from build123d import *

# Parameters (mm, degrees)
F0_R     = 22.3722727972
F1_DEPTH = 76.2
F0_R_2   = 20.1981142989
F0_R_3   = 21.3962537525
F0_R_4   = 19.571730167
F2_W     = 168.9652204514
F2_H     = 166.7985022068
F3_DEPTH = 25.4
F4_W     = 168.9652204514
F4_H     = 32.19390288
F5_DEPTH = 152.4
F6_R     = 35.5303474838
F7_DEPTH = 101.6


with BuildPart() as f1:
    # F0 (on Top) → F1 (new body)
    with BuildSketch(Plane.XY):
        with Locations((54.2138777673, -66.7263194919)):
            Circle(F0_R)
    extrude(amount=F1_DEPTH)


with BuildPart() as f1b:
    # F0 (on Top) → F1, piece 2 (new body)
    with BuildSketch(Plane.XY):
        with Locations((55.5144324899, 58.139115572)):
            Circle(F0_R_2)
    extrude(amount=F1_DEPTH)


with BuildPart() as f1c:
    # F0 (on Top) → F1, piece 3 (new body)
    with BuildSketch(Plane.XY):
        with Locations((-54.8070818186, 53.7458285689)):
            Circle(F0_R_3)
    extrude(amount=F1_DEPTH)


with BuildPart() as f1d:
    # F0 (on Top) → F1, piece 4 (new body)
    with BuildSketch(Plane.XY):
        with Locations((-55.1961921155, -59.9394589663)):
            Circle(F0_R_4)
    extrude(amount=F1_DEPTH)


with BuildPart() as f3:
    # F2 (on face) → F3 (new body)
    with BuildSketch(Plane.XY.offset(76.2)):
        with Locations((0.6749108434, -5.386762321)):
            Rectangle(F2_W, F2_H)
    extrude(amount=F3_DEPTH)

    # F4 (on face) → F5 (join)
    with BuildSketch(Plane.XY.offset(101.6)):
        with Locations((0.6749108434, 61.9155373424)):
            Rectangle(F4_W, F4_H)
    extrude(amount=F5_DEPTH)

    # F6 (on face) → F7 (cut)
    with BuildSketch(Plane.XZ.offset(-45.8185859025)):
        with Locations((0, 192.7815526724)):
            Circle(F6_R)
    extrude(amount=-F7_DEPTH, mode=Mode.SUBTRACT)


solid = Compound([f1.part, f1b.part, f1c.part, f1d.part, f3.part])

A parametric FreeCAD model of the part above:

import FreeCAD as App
import Part
import Sketcher
from FreeCAD import Vector
Q = App.Units.Quantity


def add_polygon(sketch, points):
    """Adds a closed chain of lines whose ends are joined by coincident constraints."""
    first, n = sketch.GeometryCount, len(points)
    for a, b in zip(points, points[1:] + points[:1]):
        sketch.addGeometry(Part.LineSegment(App.Vector(*a, 0), App.Vector(*b, 0)), False)
    for i in range(n):
        sketch.addConstraint(Sketcher.Constraint("Coincident", first + i, 2, first + (i + 1) % n, 1))

doc = App.newDocument("Part")
body = doc.addObject("PartDesign::Body", "Body")

# Sketch on XY plane
sketch1 = doc.addObject("Sketcher::SketchObject", "Sketch")
body.addObject(sketch1)
sketch1.AttachmentSupport = (doc.XY_Plane, [""])
sketch1.MapMode = "FlatFace"
sketch1.addGeometry(Part.Circle(Vector(54, -67, 0), Vector(0, 0, 1), 22), False)
sketch1.addConstraint([
    Sketcher.Constraint("Diameter", 0, Q("44.744546 mm")),
    Sketcher.Constraint("DistanceY", 0, 3, -1, 1, Q("66.726319 mm")),
    Sketcher.Constraint("DistanceX", -1, 1, 0, 3, Q("54.213878 mm")),
])
pad1 = doc.addObject("PartDesign::Pad", "Pad")
body.addObject(pad1)
pad1.Profile = sketch1
pad1.Length = Q("3 in")
body2 = doc.addObject("PartDesign::Body", "Body001")

# Sketch on XY plane
sketch2 = doc.addObject("Sketcher::SketchObject", "Sketch001")
body2.addObject(sketch2)
sketch2.AttachmentSupport = (doc.getObject("XY_Plane001"), [""])
sketch2.MapMode = "FlatFace"
sketch2.addGeometry(Part.Circle(Vector(56, 58, 0), Vector(0, 0, 1), 20), False)
sketch2.addConstraint([
    Sketcher.Constraint("Diameter", 0, Q("40.396229 mm")),
    Sketcher.Constraint("DistanceX", -1, 1, 0, 3, Q("55.514432 mm")),
    Sketcher.Constraint("DistanceY", -1, 1, 0, 3, Q("58.139116 mm")),
])
pad2 = doc.addObject("PartDesign::Pad", "Pad001")
body2.addObject(pad2)
pad2.Profile = sketch2
pad2.Length = Q("3 in")
body3 = doc.addObject("PartDesign::Body", "Body002")

# Sketch on XY plane
sketch3 = doc.addObject("Sketcher::SketchObject", "Sketch002")
body3.addObject(sketch3)
sketch3.AttachmentSupport = (doc.getObject("XY_Plane002"), [""])
sketch3.MapMode = "FlatFace"
sketch3.addGeometry(Part.Circle(Vector(-55, 54, 0), Vector(0, 0, 1), 21), False)
sketch3.addConstraint([
    Sketcher.Constraint("Diameter", 0, Q("42.792508 mm")),
    Sketcher.Constraint("DistanceX", 0, 3, -1, 1, Q("54.807082 mm")),
    Sketcher.Constraint("DistanceY", -1, 1, 0, 3, Q("53.745829 mm")),
])
pad3 = doc.addObject("PartDesign::Pad", "Pad002")
body3.addObject(pad3)
pad3.Profile = sketch3
pad3.Length = Q("3 in")
body4 = doc.addObject("PartDesign::Body", "Body003")

# Sketch on XY plane
sketch4 = doc.addObject("Sketcher::SketchObject", "Sketch003")
body4.addObject(sketch4)
sketch4.AttachmentSupport = (doc.getObject("XY_Plane003"), [""])
sketch4.MapMode = "FlatFace"
sketch4.addGeometry(Part.Circle(Vector(-55, -60, 0), Vector(0, 0, 1), 20), False)
sketch4.addConstraint([
    Sketcher.Constraint("Diameter", 0, Q("39.14346 mm")),
    Sketcher.Constraint("DistanceY", 0, 3, -1, 1, Q("59.939459 mm")),
    Sketcher.Constraint("DistanceX", 0, 3, -1, 1, Q("55.196192 mm")),
])
pad4 = doc.addObject("PartDesign::Pad", "Pad003")
body4.addObject(pad4)
pad4.Profile = sketch4
pad4.Length = Q("3 in")
body5 = doc.addObject("PartDesign::Body", "Body004")

# Sketch on XY plane
sketch5 = doc.addObject("Sketcher::SketchObject", "Sketch004")
body5.addObject(sketch5)
sketch5.AttachmentSupport = (doc.getObject("XY_Plane004"), [""])
sketch5.MapMode = "FlatFace"
sketch5.AttachmentOffset = App.Placement(Vector(0, 0, 3 * 25.4), App.Rotation())
add_polygon(sketch5, [(-84, 78), (-84, -89), (85, -89), (85, 78)])  # lines 0-3
sketch5.addConstraint([
    Sketcher.Constraint("Vertical", 0),
    Sketcher.Constraint("Horizontal", 1),
    Sketcher.Constraint("Vertical", 2),
    Sketcher.Constraint("Horizontal", 3),
    Sketcher.Constraint("DistanceX", 1, 1, 1, 2, Q("168.96522 mm")),
    Sketcher.Constraint("DistanceX", 0, 2, -1, 1, Q("83.807699 mm")),
    Sketcher.Constraint("DistanceY", 0, 2, 0, 1, Q("166.798502 mm")),
    Sketcher.Constraint("DistanceY", -1, 1, 2, 2, Q("78.012489 mm")),
])
pad5 = doc.addObject("PartDesign::Pad", "Pad004")
body5.addObject(pad5)
pad5.Profile = sketch5
pad5.Length = Q("1 in")

# Sketch on XY plane
sketch6 = doc.addObject("Sketcher::SketchObject", "Sketch005")
body5.addObject(sketch6)
sketch6.AttachmentSupport = (doc.getObject("XY_Plane004"), [""])
sketch6.MapMode = "FlatFace"
sketch6.AttachmentOffset = App.Placement(Vector(0, 0, 4 * 25.4), App.Rotation())
add_polygon(sketch6, [(-84, 78), (-84, 46), (85, 46), (85, 78)])  # lines 0-3
sketch6.addConstraint([
    Sketcher.Constraint("Vertical", 0),
    Sketcher.Constraint("Horizontal", 1),
    Sketcher.Constraint("Vertical", 2),
    Sketcher.Constraint("Horizontal", 3),
    Sketcher.Constraint("DistanceX", 1, 1, 1, 2, Q("168.96522 mm")),
    Sketcher.Constraint("DistanceX", 0, 2, -1, 1, Q("83.807699 mm")),
    Sketcher.Constraint("DistanceY", 0, 2, 0, 1, Q("32.193903 mm")),
    Sketcher.Constraint("DistanceY", -1, 1, 2, 2, Q("78.012489 mm")),
])
pad6 = doc.addObject("PartDesign::Pad", "Pad005")
body5.addObject(pad6)
pad6.Profile = sketch6
pad6.Length = Q("6 in")

# Sketch on XZ plane
sketch7 = doc.addObject("Sketcher::SketchObject", "Sketch006")
body5.addObject(sketch7)
sketch7.AttachmentSupport = (doc.getObject("XZ_Plane004"), [""])
sketch7.MapMode = "FlatFace"
sketch7.AttachmentOffset = App.Placement(Vector(0, 0, -45.818586), App.Rotation())
sketch7.addGeometry(Part.Circle(Vector(0, 193, 0), Vector(0, 0, 1), 36), False)
sketch7.addConstraint([
    Sketcher.Constraint("PointOnObject", 0, 3, -2),
    Sketcher.Constraint("Diameter", 0, Q("71.060695 mm")),
    Sketcher.Constraint("DistanceY", -1, 1, 0, 3, Q("192.781553 mm")),
])
pocket1 = doc.addObject("PartDesign::Pocket", "Pocket")
body5.addObject(pocket1)
pocket1.Profile = sketch7
pocket1.Length = Q("4 in")

doc.recompute()
